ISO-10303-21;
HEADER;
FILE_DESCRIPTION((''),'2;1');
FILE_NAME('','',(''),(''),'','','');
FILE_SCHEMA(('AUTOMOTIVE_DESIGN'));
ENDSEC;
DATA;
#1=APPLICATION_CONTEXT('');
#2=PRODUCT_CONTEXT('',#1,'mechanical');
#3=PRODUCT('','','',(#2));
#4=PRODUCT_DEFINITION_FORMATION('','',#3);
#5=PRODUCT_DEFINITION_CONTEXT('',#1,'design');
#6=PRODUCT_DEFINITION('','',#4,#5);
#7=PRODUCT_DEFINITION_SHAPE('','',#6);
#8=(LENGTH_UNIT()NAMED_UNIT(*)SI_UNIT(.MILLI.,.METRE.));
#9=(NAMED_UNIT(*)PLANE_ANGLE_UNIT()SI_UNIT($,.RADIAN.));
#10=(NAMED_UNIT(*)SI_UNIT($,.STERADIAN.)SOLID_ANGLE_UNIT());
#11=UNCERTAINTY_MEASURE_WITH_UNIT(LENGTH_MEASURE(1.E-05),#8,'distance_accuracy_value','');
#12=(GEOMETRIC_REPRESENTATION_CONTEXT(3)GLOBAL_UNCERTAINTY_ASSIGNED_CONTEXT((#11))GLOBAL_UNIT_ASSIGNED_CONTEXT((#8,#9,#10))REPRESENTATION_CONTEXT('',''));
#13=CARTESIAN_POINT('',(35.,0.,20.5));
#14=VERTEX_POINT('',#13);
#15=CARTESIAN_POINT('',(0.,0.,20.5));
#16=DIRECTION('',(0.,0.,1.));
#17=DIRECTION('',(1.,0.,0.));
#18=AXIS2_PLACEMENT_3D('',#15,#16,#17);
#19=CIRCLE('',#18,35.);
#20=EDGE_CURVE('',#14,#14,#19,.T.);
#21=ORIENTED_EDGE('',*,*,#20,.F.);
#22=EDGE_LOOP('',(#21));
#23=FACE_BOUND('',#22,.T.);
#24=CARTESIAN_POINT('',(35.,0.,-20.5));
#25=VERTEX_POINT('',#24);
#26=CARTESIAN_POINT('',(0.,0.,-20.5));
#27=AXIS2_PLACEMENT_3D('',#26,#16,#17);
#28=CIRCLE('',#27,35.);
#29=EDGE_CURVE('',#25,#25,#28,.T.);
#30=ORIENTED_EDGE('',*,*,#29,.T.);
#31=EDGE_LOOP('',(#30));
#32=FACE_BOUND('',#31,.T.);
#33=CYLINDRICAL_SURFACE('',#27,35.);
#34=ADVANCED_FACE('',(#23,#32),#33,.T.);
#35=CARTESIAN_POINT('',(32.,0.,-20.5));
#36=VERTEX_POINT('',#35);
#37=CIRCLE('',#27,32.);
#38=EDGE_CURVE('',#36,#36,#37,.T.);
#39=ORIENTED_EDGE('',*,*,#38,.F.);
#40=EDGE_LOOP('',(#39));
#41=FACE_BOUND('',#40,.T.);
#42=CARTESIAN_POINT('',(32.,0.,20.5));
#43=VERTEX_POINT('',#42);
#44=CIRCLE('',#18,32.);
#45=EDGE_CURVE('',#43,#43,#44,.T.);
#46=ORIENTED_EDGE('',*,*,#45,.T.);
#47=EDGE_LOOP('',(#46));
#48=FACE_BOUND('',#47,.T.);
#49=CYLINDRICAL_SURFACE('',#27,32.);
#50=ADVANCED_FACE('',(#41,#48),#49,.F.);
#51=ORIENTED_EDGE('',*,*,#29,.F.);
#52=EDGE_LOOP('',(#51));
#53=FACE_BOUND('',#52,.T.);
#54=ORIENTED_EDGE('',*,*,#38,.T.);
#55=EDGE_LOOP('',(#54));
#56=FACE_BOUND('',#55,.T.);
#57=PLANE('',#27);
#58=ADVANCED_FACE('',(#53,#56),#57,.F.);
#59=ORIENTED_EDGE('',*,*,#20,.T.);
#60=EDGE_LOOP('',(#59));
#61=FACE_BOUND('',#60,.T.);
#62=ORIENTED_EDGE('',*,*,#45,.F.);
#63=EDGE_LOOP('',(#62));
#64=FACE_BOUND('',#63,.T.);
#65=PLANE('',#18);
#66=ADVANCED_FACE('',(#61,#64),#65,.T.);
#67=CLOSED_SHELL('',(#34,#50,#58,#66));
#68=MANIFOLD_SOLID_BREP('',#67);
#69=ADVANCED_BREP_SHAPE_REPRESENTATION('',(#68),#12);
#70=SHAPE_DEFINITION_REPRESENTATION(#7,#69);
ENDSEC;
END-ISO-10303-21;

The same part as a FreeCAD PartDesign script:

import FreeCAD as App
import Part
import Sketcher
from FreeCAD import Vector

doc = App.newDocument("Part")
body = doc.addObject("PartDesign::Body", "Body")

sketch1 = body.newObject("Sketcher::SketchObject", "Sketch")
sketch1.AttachmentSupport = (doc.getObject("XY_Plane"), [""])
sketch1.MapMode = "FlatFace"
sketch1.addGeometry(Part.Circle(Vector(0, 0, 0), Vector(0, 0, 1), 35), False)
sketch1.addGeometry(Part.Circle(Vector(0, 0, 0), Vector(0, 0, 1), 32), False)
sketch1.addConstraint(Sketcher.Constraint("Coincident", 0, 3, -1, 1))
sketch1.addConstraint(Sketcher.Constraint("Coincident", 1, 3, -1, 1))
sketch1.addConstraint(Sketcher.Constraint("Diameter", 0, 70.0))
sketch1.addConstraint(Sketcher.Constraint("Diameter", 1, 64.0))
pad1 = body.newObject("PartDesign::Pad", "Pad")
pad1.Profile = sketch1
pad1.Type = "TwoLengths"
pad1.Length = 20.5
pad1.Length2 = 20.5

doc.recompute()
